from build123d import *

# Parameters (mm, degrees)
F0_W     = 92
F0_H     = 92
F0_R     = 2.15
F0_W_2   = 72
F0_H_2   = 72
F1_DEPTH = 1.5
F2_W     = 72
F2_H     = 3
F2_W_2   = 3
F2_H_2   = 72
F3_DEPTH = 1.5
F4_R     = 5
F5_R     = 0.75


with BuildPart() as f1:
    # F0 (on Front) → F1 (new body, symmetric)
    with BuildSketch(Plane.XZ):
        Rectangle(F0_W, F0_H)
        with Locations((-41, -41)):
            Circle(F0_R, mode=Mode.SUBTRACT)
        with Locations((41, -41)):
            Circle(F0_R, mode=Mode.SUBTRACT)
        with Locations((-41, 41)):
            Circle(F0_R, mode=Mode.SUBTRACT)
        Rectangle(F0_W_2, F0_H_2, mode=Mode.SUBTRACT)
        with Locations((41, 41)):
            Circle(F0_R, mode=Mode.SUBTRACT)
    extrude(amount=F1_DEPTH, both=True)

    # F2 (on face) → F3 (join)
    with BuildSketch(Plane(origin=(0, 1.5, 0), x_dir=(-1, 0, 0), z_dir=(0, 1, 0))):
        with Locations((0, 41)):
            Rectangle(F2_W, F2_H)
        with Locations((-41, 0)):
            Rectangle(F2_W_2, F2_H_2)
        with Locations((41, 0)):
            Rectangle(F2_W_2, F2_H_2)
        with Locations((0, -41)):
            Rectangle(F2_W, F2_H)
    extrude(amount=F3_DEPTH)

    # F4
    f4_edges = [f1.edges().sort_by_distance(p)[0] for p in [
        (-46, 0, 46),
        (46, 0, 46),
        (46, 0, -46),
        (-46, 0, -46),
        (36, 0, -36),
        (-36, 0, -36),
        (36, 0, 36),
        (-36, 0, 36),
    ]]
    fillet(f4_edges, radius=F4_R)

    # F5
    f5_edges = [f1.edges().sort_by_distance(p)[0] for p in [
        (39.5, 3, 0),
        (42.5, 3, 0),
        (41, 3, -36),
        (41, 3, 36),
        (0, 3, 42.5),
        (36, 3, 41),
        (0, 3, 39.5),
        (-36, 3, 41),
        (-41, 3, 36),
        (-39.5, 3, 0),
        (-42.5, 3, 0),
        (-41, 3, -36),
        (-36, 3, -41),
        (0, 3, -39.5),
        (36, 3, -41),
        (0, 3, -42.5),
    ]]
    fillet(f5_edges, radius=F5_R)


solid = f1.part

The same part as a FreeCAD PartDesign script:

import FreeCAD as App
import Part
import Sketcher
Q = App.Units.Quantity


def edges_at(feature, points):
    """Names of the edges that pass closest to the given points."""
    edges = feature.Shape.Edges
    near = lambda p: min(range(len(edges)), key=lambda i: edges[i].distToShape(Part.Vertex(*p))[0])
    return sorted({f"Edge{near(p) + 1}" for p in points})

doc = App.newDocument("Part")
params = doc.addObject("Spreadsheet::Sheet", "Params")
for row, (alias, value) in enumerate([
    ("sketch1_diameter", "4.3 mm"),
    ("sketch1_width", "92 mm"),
    ("sketch1_width2", "72 mm"),
    ("pad1_length", "3 mm"),
    ("sketch2_width", "72 mm"),
    ("sketch2_width2", "3 mm"),
    ("pad2_length", "1.5 mm"),
    ("fillet_radius", "5 mm"),
    ("fillet2_radius", "0.75 mm"),
], start=1):
    params.set(f"A{row}", alias)
    params.set(f"B{row}", "=" + value)
    params.setAlias(f"B{row}", alias)

body = doc.addObject("PartDesign::Body", "Body")

# Sketch on XZ plane
sketch1 = body.newObject("Sketcher::SketchObject", "Sketch")
sketch1.AttachmentSupport = (doc.getObject("XZ_Plane"), [""])
sketch1.MapMode = "FlatFace"
sketch1.addGeometry([
    Part.LineSegment(App.Vector(-46, 46, 0), App.Vector(-46, -46, 0)),  # 0
    Part.LineSegment(App.Vector(-46, -46, 0), App.Vector(46, -46, 0)),  # 1
    Part.LineSegment(App.Vector(46, -46, 0), App.Vector(46, 46, 0)),  # 2
    Part.LineSegment(App.Vector(46, 46, 0), App.Vector(-46, 46, 0)),  # 3
    Part.Circle(App.Vector(-41, -41, 0), App.Vector(0, 0, 1), 2.1),  # 4
    Part.Circle(App.Vector(41, -41, 0), App.Vector(0, 0, 1), 2.1),  # 5
    Part.Circle(App.Vector(-41, 41, 0), App.Vector(0, 0, 1), 2.1),  # 6
    Part.LineSegment(App.Vector(36, -36, 0), App.Vector(-36, -36, 0)),  # 7
    Part.LineSegment(App.Vector(-36, -36, 0), App.Vector(-36, 36, 0)),  # 8
    Part.LineSegment(App.Vector(-36, 36, 0), App.Vector(36, 36, 0)),  # 9
    Part.LineSegment(App.Vector(36, 36, 0), App.Vector(36, -36, 0)),  # 10
    Part.Circle(App.Vector(41, 41, 0), App.Vector(0, 0, 1), 2.1),  # 11
], False)
sketch1.addConstraint([
    Sketcher.Constraint("Coincident", 0, 2, 1, 1),
    Sketcher.Constraint("Coincident", 1, 2, 2, 1),
    Sketcher.Constraint("Coincident", 2, 2, 3, 1),
    Sketcher.Constraint("Coincident", 3, 2, 0, 1),
    Sketcher.Constraint("Coincident", 7, 2, 8, 1),
    Sketcher.Constraint("Coincident", 8, 2, 9, 1),
    Sketcher.Constraint("Coincident", 9, 2, 10, 1),
    Sketcher.Constraint("Coincident", 10, 2, 7, 1),
    Sketcher.Constraint("Vertical", 0),
    Sketcher.Constraint("Horizontal", 1),
    Sketcher.Constraint("Vertical", 2),
    Sketcher.Constraint("Horizontal", 3),
    Sketcher.Constraint("Horizontal", 7),
    Sketcher.Constraint("Vertical", 8),
    Sketcher.Constraint("Horizontal", 9),
    Sketcher.Constraint("Vertical", 10),
    Sketcher.Constraint("Equal", 4, 5),
    Sketcher.Constraint("Equal", 5, 6),
    Sketcher.Constraint("Equal", 6, 11),
    Sketcher.Constraint("Symmetric", 5, 3, 6, 3, -1, 1),
    Sketcher.Constraint("Symmetric", 4, 3, 11, 3, -1, 1),
    Sketcher.Constraint("Symmetric", 0, 2, 2, 2, -1, 1),
    Sketcher.Constraint("Symmetric", 7, 2, 9, 2, -1, 1),
    Sketcher.Constraint("Symmetric", 4, 3, 5, 3, -2),
    Sketcher.Constraint("Equal", 3, 0),
    Sketcher.Constraint("Equal", 9, 8),
    Sketcher.Constraint("Diameter", 4, Q("4.3 mm")),
    Sketcher.Constraint("DistanceX", 1, 1, 1, 2, Q("92 mm")),
    Sketcher.Constraint("DistanceX", 7, 2, 7, 1, Q("72 mm")),
    Sketcher.Constraint("DistanceX", 4, 3, -1, 1, Q("41 mm")),
    Sketcher.Constraint("DistanceY", 4, 3, -1, 1, Q("41 mm")),
])
sketch1.setExpression("Constraints[26]", "Params.sketch1_diameter")
sketch1.setExpression("Constraints[27]", "Params.sketch1_width")
sketch1.setExpression("Constraints[28]", "Params.sketch1_width2")
pad1 = body.newObject("PartDesign::Pad", "Pad")
pad1.Profile = sketch1
pad1.setExpression("Length", "Params.pad1_length")
pad1.Midplane = True

# Sketch on XZ plane
sketch2 = body.newObject("Sketcher::SketchObject", "Sketch001")
sketch2.AttachmentSupport = (doc.getObject("XZ_Plane"), [""])
sketch2.MapMode = "FlatFace"
sketch2.AttachmentOffset = App.Placement(App.Vector(0, 0, -1.5), App.Rotation())
sketch2.addGeometry([
    Part.LineSegment(App.Vector(36, 42.5, 0), App.Vector(36, 39.5, 0)),  # 0
    Part.LineSegment(App.Vector(36, 39.5, 0), App.Vector(-36, 39.5, 0)),  # 1
    Part.LineSegment(App.Vector(-36, 39.5, 0), App.Vector(-36, 42.5, 0)),  # 2
    Part.LineSegment(App.Vector(-36, 42.5, 0), App.Vector(36, 42.5, 0)),  # 3
    Part.LineSegment(App.Vector(42.5, 36, 0), App.Vector(42.5, -36, 0)),  # 4
    Part.LineSegment(App.Vector(42.5, -36, 0), App.Vector(39.5, -36, 0)),  # 5
    Part.LineSegment(App.Vector(39.5, -36, 0), App.Vector(39.5, 36, 0)),  # 6
    Part.LineSegment(App.Vector(39.5, 36, 0), App.Vector(42.5, 36, 0)),  # 7
    Part.LineSegment(App.Vector(-39.5, 36, 0), App.Vector(-39.5, -36, 0)),  # 8
    Part.LineSegment(App.Vector(-39.5, -36, 0), App.Vector(-42.5, -36, 0)),  # 9
    Part.LineSegment(App.Vector(-42.5, -36, 0), App.Vector(-42.5, 36, 0)),  # 10
    Part.LineSegment(App.Vector(-42.5, 36, 0), App.Vector(-39.5, 36, 0)),  # 11
    Part.LineSegment(App.Vector(36, -39.5, 0), App.Vector(36, -42.5, 0)),  # 12
    Part.LineSegment(App.Vector(36, -42.5, 0), App.Vector(-36, -42.5, 0)),  # 13
    Part.LineSegment(App.Vector(-36, -42.5, 0), App.Vector(-36, -39.5, 0)),  # 14
    Part.LineSegment(App.Vector(-36, -39.5, 0), App.Vector(36, -39.5, 0)),  # 15
], False)
sketch2.addConstraint([
    Sketcher.Constraint("Coincident", 0, 2, 1, 1),
    Sketcher.Constraint("Coincident", 1, 2, 2, 1),
    Sketcher.Constraint("Coincident", 2, 2, 3, 1),
    Sketcher.Constraint("Coincident", 3, 2, 0, 1),
    Sketcher.Constraint("Coincident", 4, 2, 5, 1),
    Sketcher.Constraint("Coincident", 5, 2, 6, 1),
    Sketcher.Constraint("Coincident", 6, 2, 7, 1),
    Sketcher.Constraint("Coincident", 7, 2, 4, 1),
    Sketcher.Constraint("Coincident", 8, 2, 9, 1),
    Sketcher.Constraint("Coincident", 9, 2, 10, 1),
    Sketcher.Constraint("Coincident", 10, 2, 11, 1),
    Sketcher.Constraint("Coincident", 11, 2, 8, 1),
    Sketcher.Constraint("Coincident", 12, 2, 13, 1),
    Sketcher.Constraint("Coincident", 13, 2, 14, 1),
    Sketcher.Constraint("Coincident", 14, 2, 15, 1),
    Sketcher.Constraint("Coincident", 15, 2, 12, 1),
    Sketcher.Constraint("Vertical", 0),
    Sketcher.Constraint("Horizontal", 1),
    Sketcher.Constraint("Vertical", 2),
    Sketcher.Constraint("Horizontal", 3),
    Sketcher.Constraint("Vertical", 4),
    Sketcher.Constraint("Horizontal", 5),
    Sketcher.Constraint("Vertical", 6),
    Sketcher.Constraint("Horizontal", 7),
    Sketcher.Constraint("Vertical", 8),
    Sketcher.Constraint("Horizontal", 9),
    Sketcher.Constraint("Vertical", 10),
    Sketcher.Constraint("Horizontal", 11),
    Sketcher.Constraint("Vertical", 12),
    Sketcher.Constraint("Horizontal", 13),
    Sketcher.Constraint("Vertical", 14),
    Sketcher.Constraint("Horizontal", 15),
    Sketcher.Constraint("Symmetric", 6, 2, 8, 2, -1, 1),
    Sketcher.Constraint("Symmetric", 4, 2, 10, 2, -1, 1),
    Sketcher.Constraint("Symmetric", 2, 2, 12, 2, -1, 1),
    Sketcher.Constraint("Symmetric", 0, 2, 14, 2, -1, 1),
    Sketcher.Constraint("Horizontal", 5, 2, 8, 2),
    Sketcher.Constraint("Vertical", 3, 2, 12, 2),
    Sketcher.Constraint("Equal", 11, 0),
    Sketcher.Constraint("Equal", 15, 4),
    Sketcher.Constraint("DistanceX", 1, 2, 1, 1, Q("72 mm")),
    Sketcher.Constraint("DistanceX", 5, 2, 5, 1, Q("3 mm")),
    Sketcher.Constraint("DistanceX", 8, 2, 5, 2, Q("79 mm")),
    Sketcher.Constraint("DistanceY", -1, 1, 0, 2, Q("39.5 mm")),
])
sketch2.setExpression("Constraints[40]", "Params.sketch2_width")
sketch2.setExpression("Constraints[41]", "Params.sketch2_width2")
pad2 = body.newObject("PartDesign::Pad", "Pad001")
pad2.Profile = sketch2
pad2.setExpression("Length", "Params.pad2_length")
pad2.Reversed = True
doc.recompute()

fillet = body.newObject("PartDesign::Fillet", "Fillet")
fillet.Base = (pad2, edges_at(pad2, [
    (-46, 0, 46),
    (46, 0, 46),
    (46, 0, -46),
    (-46, 0, -46),
    (36, 0, -36),
    (-36, 0, -36),
    (36, 0, 36),
    (-36, 0, 36),
]))
fillet.setExpression("Radius", "Params.fillet_radius")
doc.recompute()

fillet2 = body.newObject("PartDesign::Fillet", "Fillet001")
fillet2.Base = (fillet, edges_at(fillet, [
    (39.5, 3, 0),
    (42.5, 3, 0),
    (41, 3, -36),
    (41, 3, 36),
    (0, 3, 42.5),
    (36, 3, 41),
    (0, 3, 39.5),
    (-36, 3, 41),
    (-41, 3, 36),
    (-39.5, 3, 0),
    (-42.5, 3, 0),
    (-41, 3, -36),
    (-36, 3, -41),
    (0, 3, -39.5),
    (36, 3, -41),
    (0, 3, -42.5),
]))
fillet2.setExpression("Radius", "Params.fillet2_radius")

doc.recompute()
